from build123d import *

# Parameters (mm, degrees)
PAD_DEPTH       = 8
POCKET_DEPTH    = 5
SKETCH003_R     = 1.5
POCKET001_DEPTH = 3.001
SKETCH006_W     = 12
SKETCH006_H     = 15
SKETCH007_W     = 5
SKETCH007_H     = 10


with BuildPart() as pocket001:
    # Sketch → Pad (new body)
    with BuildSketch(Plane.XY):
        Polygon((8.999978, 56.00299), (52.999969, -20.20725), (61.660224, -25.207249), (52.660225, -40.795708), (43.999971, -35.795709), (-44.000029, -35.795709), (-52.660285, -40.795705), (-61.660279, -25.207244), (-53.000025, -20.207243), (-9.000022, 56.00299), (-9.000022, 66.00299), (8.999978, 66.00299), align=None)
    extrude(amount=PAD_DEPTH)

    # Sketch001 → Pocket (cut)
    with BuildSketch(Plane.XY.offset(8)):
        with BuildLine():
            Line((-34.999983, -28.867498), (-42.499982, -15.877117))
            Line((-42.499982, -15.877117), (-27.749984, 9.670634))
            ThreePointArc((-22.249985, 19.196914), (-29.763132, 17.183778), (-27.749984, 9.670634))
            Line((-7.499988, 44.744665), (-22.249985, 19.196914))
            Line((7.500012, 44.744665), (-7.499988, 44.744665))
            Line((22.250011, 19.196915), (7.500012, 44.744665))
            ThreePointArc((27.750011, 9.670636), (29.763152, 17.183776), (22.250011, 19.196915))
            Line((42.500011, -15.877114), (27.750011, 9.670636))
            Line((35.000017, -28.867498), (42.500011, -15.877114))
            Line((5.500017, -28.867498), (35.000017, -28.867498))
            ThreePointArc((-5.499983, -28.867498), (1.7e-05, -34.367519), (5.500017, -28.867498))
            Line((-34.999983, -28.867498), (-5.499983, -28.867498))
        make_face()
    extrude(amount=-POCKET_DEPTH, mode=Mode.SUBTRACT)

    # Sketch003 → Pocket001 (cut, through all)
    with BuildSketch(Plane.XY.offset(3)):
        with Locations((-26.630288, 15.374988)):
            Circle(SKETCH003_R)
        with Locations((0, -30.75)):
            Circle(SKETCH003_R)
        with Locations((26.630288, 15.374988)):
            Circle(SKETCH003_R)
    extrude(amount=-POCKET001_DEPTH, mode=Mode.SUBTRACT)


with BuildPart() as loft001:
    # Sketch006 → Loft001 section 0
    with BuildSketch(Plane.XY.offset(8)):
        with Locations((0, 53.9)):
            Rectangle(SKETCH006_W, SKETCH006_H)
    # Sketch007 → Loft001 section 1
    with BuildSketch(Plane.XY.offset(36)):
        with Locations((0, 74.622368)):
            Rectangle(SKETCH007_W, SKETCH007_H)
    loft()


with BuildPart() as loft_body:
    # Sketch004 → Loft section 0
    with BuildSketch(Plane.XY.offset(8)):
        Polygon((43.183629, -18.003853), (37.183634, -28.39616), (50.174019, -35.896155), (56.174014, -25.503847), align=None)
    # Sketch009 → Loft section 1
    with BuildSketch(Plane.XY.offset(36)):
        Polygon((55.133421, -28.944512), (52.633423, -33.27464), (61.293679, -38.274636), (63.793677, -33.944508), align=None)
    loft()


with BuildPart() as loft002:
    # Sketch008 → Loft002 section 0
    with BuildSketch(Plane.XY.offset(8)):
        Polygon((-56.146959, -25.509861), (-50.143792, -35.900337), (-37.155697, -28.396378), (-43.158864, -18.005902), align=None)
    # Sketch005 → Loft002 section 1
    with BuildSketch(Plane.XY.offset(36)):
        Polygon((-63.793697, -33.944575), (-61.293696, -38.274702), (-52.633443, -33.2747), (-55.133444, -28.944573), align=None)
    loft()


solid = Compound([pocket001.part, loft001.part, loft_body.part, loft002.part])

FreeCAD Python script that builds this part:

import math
import FreeCAD as App
import Part
import Sketcher
from FreeCAD import Vector
Q = App.Units.Quantity

doc = App.newDocument("Part")
body = doc.addObject("PartDesign::Body", "Body")

# Sketch on XY plane
sketch1 = body.newObject("Sketcher::SketchObject", "Sketch")
sketch1.AttachmentSupport = (doc.getObject("XY_Plane"), [""])
sketch1.MapMode = "FlatFace"
sketch1.addGeometry([
    Part.LineSegment(Vector(52.999969, -20.20725, 0), Vector(8.999978, 56.00299, 0)),  # 0
    Part.LineSegment(Vector(8.999978, 56.00299, 0), Vector(8.999978, 66.00299, 0)),  # 1
    Part.LineSegment(Vector(8.999978, 66.00299, 0), Vector(-9.000022, 66.00299, 0)),  # 2
    Part.LineSegment(Vector(-9.000022, 66.00299, 0), Vector(-9.000022, 56.00299, 0)),  # 3
    Part.LineSegment(Vector(-9.000022, 56.00299, 0), Vector(-53.000025, -20.207243, 0)),  # 4
    Part.LineSegment(Vector(-53.000025, -20.207243, 0), Vector(-61.660279, -25.207244, 0)),  # 5
    Part.LineSegment(Vector(-61.660279, -25.207244, 0), Vector(-52.660285, -40.795705, 0)),  # 6
    Part.LineSegment(Vector(-52.660285, -40.795705, 0), Vector(-44.000029, -35.795709, 0)),  # 7
    Part.LineSegment(Vector(-44.000029, -35.795709, 0), Vector(43.999971, -35.795709, 0)),  # 8
    Part.LineSegment(Vector(43.999971, -35.795709, 0), Vector(52.660225, -40.795708, 0)),  # 9
    Part.LineSegment(Vector(52.660225, -40.795708, 0), Vector(61.660224, -25.207249, 0)),  # 10
    Part.LineSegment(Vector(61.660224, -25.207249, 0), Vector(52.999969, -20.20725, 0)),  # 11
], False)
sketch1.addConstraint([
    Sketcher.Constraint("Coincident", 0, 2, 1, 1),
    Sketcher.Constraint("Coincident", 1, 2, 2, 1),
    Sketcher.Constraint("Coincident", 2, 2, 3, 1),
    Sketcher.Constraint("Coincident", 3, 2, 4, 1),
    Sketcher.Constraint("Coincident", 4, 2, 5, 1),
    Sketcher.Constraint("Coincident", 5, 2, 6, 1),
    Sketcher.Constraint("Coincident", 6, 2, 7, 1),
    Sketcher.Constraint("Coincident", 7, 2, 8, 1),
    Sketcher.Constraint("Coincident", 8, 2, 9, 1),
    Sketcher.Constraint("Coincident", 9, 2, 10, 1),
    Sketcher.Constraint("Coincident", 10, 2, 11, 1),
    Sketcher.Constraint("Coincident", 11, 2, 0, 1),
    Sketcher.Constraint("Vertical", 1),
    Sketcher.Constraint("Horizontal", 2),
    Sketcher.Constraint("Vertical", 3),
    Sketcher.Constraint("Horizontal", 8),
    Sketcher.Constraint("Perpendicular", 0, 5),
    Sketcher.Constraint("Perpendicular", 5, 6),
    Sketcher.Constraint("Perpendicular", 6, 7),
    Sketcher.Constraint("Perpendicular", 4, 9),
    Sketcher.Constraint("Perpendicular", 9, 10),
    Sketcher.Constraint("Perpendicular", 10, 11),
    Sketcher.Constraint("Horizontal", 0, 2, 3, 2),
    Sketcher.Constraint("Equal", 0, 4),
    Sketcher.Constraint("Equal", 5, 7),
    Sketcher.Constraint("Equal", 7, 9),
    Sketcher.Constraint("Equal", 6, 10),
    Sketcher.Constraint("Equal", 9, 11),
    Sketcher.Constraint("DistanceX", 2, 2, 2, 1, 18.0),
    Sketcher.Constraint("DistanceX", 8, 1, 8, 2, 88.0),
    Sketcher.Constraint("DistanceY", 1, 1, 1, 2, 10.0),
    Sketcher.Constraint("Angle", 0, Q("119.999993 deg")),
    Sketcher.Constraint("Distance", 0, 87.999999),
    Sketcher.Constraint("Distance", 5, 10.0),
    Sketcher.Constraint("DistanceY", -1, 1, 0, 2, 56.00299),
    Sketcher.Constraint("DistanceX", 5, 2, -1, 1, 61.660279),
])
pad1 = body.newObject("PartDesign::Pad", "Pad")
pad1.Profile = sketch1
pad1.Length = 8

# Sketch on XY plane
sketch2 = body.newObject("Sketcher::SketchObject", "Sketch001")
sketch2.AttachmentSupport = (doc.getObject("XY_Plane"), [""])
sketch2.MapMode = "FlatFace"
sketch2.AttachmentOffset = App.Placement(Vector(0, 0, 8), App.Rotation())
sketch2.addGeometry([
    Part.LineSegment(Vector(-42.499982, -15.877117, 0), Vector(-34.999983, -28.867498, 0)),  # 0
    Part.LineSegment(Vector(-34.999983, -28.867498, 0), Vector(-5.499983, -28.867498, 0)),  # 1
    Part.ArcOfCircle(Part.Circle(Vector(0.000017, -28.867519, 0), Vector(0, 0, 1), 5.5), math.radians(179.999781), math.radians(360.000219)),  # 2
    Part.LineSegment(Vector(5.500017, -28.867498, 0), Vector(35.000017, -28.867498, 0)),  # 3
    Part.LineSegment(Vector(35.000017, -28.867498, 0), Vector(42.500011, -15.877114, 0)),  # 4
    Part.LineSegment(Vector(42.500011, -15.877114, 0), Vector(27.750011, 9.670636, 0)),  # 5
    Part.ArcOfCircle(Part.Circle(Vector(25.000012, 14.433776, 0), Vector(0, 0, 1), 5.5), math.radians(-60.000015), math.radians(120.000017)),  # 6
    Part.LineSegment(Vector(22.250011, 19.196915, 0), Vector(7.500012, 44.744665, 0)),  # 7
    Part.LineSegment(Vector(7.500012, 44.744665, 0), Vector(-7.499988, 44.744665, 0)),  # 8
    Part.LineSegment(Vector(-7.499988, 44.744665, 0), Vector(-22.249985, 19.196914, 0)),  # 9
    Part.ArcOfCircle(Part.Circle(Vector(-24.999992, 14.433778, 0), Vector(0, 0, 1), 5.5), math.radians(59.999915), math.radians(240.000097)),  # 10
    Part.LineSegment(Vector(-27.749984, 9.670634, 0), Vector(-42.499982, -15.877117, 0)),  # 11
], False)
sketch2.addConstraint([
    Sketcher.Constraint("Coincident", 0, 2, 1, 1),
    Sketcher.Constraint("Coincident", 1, 2, 2, 1),
    Sketcher.Constraint("Coincident", 2, 2, 3, 1),
    Sketcher.Constraint("Coincident", 3, 2, 4, 1),
    Sketcher.Constraint("Coincident", 4, 2, 5, 1),
    Sketcher.Constraint("Coincident", 5, 2, 6, 1),
    Sketcher.Constraint("Coincident", 6, 2, 7, 1),
    Sketcher.Constraint("Coincident", 7, 2, 8, 1),
    Sketcher.Constraint("Coincident", 8, 2, 9, 1),
    Sketcher.Constraint("Coincident", 9, 2, 10, 1),
    Sketcher.Constraint("Coincident", 10, 2, 11, 1),
    Sketcher.Constraint("Coincident", 11, 2, 0, 1),
    Sketcher.Constraint("Horizontal", 1),
    Sketcher.Constraint("Horizontal", 3),
    Sketcher.Constraint("Horizontal", 8),
    Sketcher.Constraint("Equal", 2, 6),
    Sketcher.Constraint("Equal", 6, 10),
    Sketcher.Constraint("Parallel", 0, 5),
    Sketcher.Constraint("Parallel", 5, 7),
    Sketcher.Constraint("Parallel", 4, 9),
    Sketcher.Constraint("Parallel", 9, 11),
    Sketcher.Constraint("Horizontal", 1, 2, 2, 2),
    Sketcher.Constraint("Horizontal", 6, 2, 9, 2),
    Sketcher.Constraint("Equal", 1, 3),
    Sketcher.Constraint("Equal", 0, 4),
    Sketcher.Constraint("Equal", 5, 7),
    Sketcher.Constraint("Equal", 7, 9),
    Sketcher.Constraint("Equal", 9, 11),
    Sketcher.Constraint("Radius", 2, 5.5),
    Sketcher.Constraint("DistanceX", 8, 2, 8, 1, 15.0),
    Sketcher.Constraint("Angle", 0, Q("-60.000003 deg")),
    Sketcher.Constraint("Distance", 0, 14.999999),
    Sketcher.Constraint("DistanceX", 1, 1, 1, 2, 29.5),
    Sketcher.Constraint("Distance", 5, 29.500001),
    Sketcher.Constraint("DistanceX", 6, 3, 4, 2, 17.499999),
    Sketcher.Constraint("DistanceY", 0, 2, -1, 1, 28.867498),
    Sketcher.Constraint("DistanceY", 2, 3, -1, 1, 28.867519),
    Sketcher.Constraint("DistanceY", -1, 1, 10, 3, 14.433778),
    Sketcher.Constraint("DistanceX", -1, 1, 4, 2, 42.500011),
])
pocket1 = body.newObject("PartDesign::Pocket", "Pocket")
pocket1.Profile = sketch2
pocket1.Length = 5

# Sketch on XY plane
sketch3 = body.newObject("Sketcher::SketchObject", "Sketch002")
sketch3.AttachmentSupport = (doc.getObject("XY_Plane"), [""])
sketch3.MapMode = "FlatFace"
sketch3.AttachmentOffset = App.Placement(Vector(0, 0, 3), App.Rotation())
sketch3.addGeometry([
    Part.Circle(Vector(-26.630288, 15.374988, 0), Vector(0, 0, 1), 1.5),
    Part.Circle(Vector(0, -30.75, 0), Vector(0, 0, 1), 1.5),
    Part.Circle(Vector(26.630288, 15.374988, 0), Vector(0, 0, 1), 1.5),
], False)
sketch3.addConstraint([
    Sketcher.Constraint("Equal", 0, 1),
    Sketcher.Constraint("Equal", 1, 2),
    Sketcher.Constraint("Symmetric", 0, 3, 2, 3, -2),
    Sketcher.Constraint("PointOnObject", 1, 3, -2),
    Sketcher.Constraint("Diameter", 0, 3.0),
    Sketcher.Constraint("DistanceY", 1, 3, -1, 1, 30.75),
    Sketcher.Constraint("DistanceX", 0, 3, -1, 1, 26.630288),
    Sketcher.Constraint("DistanceY", 1, 3, 0, 3, 46.124988),
])
pocket2 = body.newObject("PartDesign::Pocket", "Pocket001")
pocket2.Profile = sketch3
pocket2.Type = "ThroughAll"
body2 = doc.addObject("PartDesign::Body", "Body001")

# Sketch on XY plane
sketch4 = body2.newObject("Sketcher::SketchObject", "Sketch003")
sketch4.AttachmentSupport = (doc.getObject("XY_Plane001"), [""])
sketch4.MapMode = "FlatFace"
sketch4.AttachmentOffset = App.Placement(Vector(0, 0, 8), App.Rotation())
sketch4.addGeometry([
    Part.LineSegment(Vector(-6, 61.4, 0), Vector(-6, 46.4, 0)),
    Part.LineSegment(Vector(-6, 46.4, 0), Vector(6, 46.4, 0)),
    Part.LineSegment(Vector(6, 46.4, 0), Vector(6, 61.4, 0)),
    Part.LineSegment(Vector(6, 61.4, 0), Vector(-6, 61.4, 0)),
], False)
sketch4.addConstraint([
    Sketcher.Constraint("Coincident", 0, 2, 1, 1),
    Sketcher.Constraint("Coincident", 1, 2, 2, 1),
    Sketcher.Constraint("Coincident", 2, 2, 3, 1),
    Sketcher.Constraint("Coincident", 3, 2, 0, 1),
    Sketcher.Constraint("Vertical", 0),
    Sketcher.Constraint("Horizontal", 1),
    Sketcher.Constraint("Vertical", 2),
    Sketcher.Constraint("Horizontal", 3),
    Sketcher.Constraint("DistanceX", 1, 1, 1, 2, 12.0),
    Sketcher.Constraint("DistanceY", 0, 2, 0, 1, 15.0),
    Sketcher.Constraint("DistanceX", 0, 2, -1, 1, 6.0),
    Sketcher.Constraint("DistanceY", -1, 1, 0, 2, 46.4),
])

# Sketch on XY plane
sketch5 = body2.newObject("Sketcher::SketchObject", "Sketch004")
sketch5.AttachmentSupport = (doc.getObject("XY_Plane001"), [""])
sketch5.MapMode = "FlatFace"
sketch5.AttachmentOffset = App.Placement(Vector(0, 0, 36), App.Rotation())
sketch5.addGeometry([
    Part.LineSegment(Vector(-2.5, 79.622368, 0), Vector(-2.5, 69.622368, 0)),
    Part.LineSegment(Vector(-2.5, 69.622368, 0), Vector(2.5, 69.622368, 0)),
    Part.LineSegment(Vector(2.5, 69.622368, 0), Vector(2.5, 79.622368, 0)),
    Part.LineSegment(Vector(2.5, 79.622368, 0), Vector(-2.5, 79.622368, 0)),
], False)
sketch5.addConstraint([
    Sketcher.Constraint("Coincident", 0, 2, 1, 1),
    Sketcher.Constraint("Coincident", 1, 2, 2, 1),
    Sketcher.Constraint("Coincident", 2, 2, 3, 1),
    Sketcher.Constraint("Coincident", 3, 2, 0, 1),
    Sketcher.Constraint("Vertical", 0),
    Sketcher.Constraint("Horizontal", 1),
    Sketcher.Constraint("Vertical", 2),
    Sketcher.Constraint("Horizontal", 3),
    Sketcher.Constraint("DistanceX", 1, 1, 1, 2, 5.0),
    Sketcher.Constraint("DistanceY", 0, 2, 0, 1, 10.0),
    Sketcher.Constraint("DistanceX", 0, 2, -1, 1, 2.5),
    Sketcher.Constraint("DistanceY", -1, 1, 0, 2, 69.622368),
])

additiveloft = body2.newObject("PartDesign::AdditiveLoft", "AdditiveLoft")
additiveloft.Profile = sketch4
additiveloft.Sections = [sketch5]
body3 = doc.addObject("PartDesign::Body", "Body002")

# Sketch on XY plane
sketch6 = body3.newObject("Sketcher::SketchObject", "Sketch005")
sketch6.AttachmentSupport = (doc.getObject("XY_Plane002"), [""])
sketch6.MapMode = "FlatFace"
sketch6.AttachmentOffset = App.Placement(Vector(0, 0, 8), App.Rotation())
sketch6.addGeometry([
    Part.LineSegment(Vector(43.183629, -18.003853, 0), Vector(37.183634, -28.39616, 0)),
    Part.LineSegment(Vector(37.183634, -28.39616, 0), Vector(50.174019, -35.896155, 0)),
    Part.LineSegment(Vector(50.174019, -35.896155, 0), Vector(56.174014, -25.503847, 0)),
    Part.LineSegment(Vector(56.174014, -25.503847, 0), Vector(43.183629, -18.003853, 0)),
], False)
sketch6.addConstraint([
    Sketcher.Constraint("Coincident", 0, 2, 1, 1),
    Sketcher.Constraint("Coincident", 1, 2, 2, 1),
    Sketcher.Constraint("Coincident", 2, 2, 3, 1),
    Sketcher.Constraint("Coincident", 3, 2, 0, 1),
    Sketcher.Constraint("Perpendicular", 0, 1),
    Sketcher.Constraint("Perpendicular", 1, 2),
    Sketcher.Constraint("Perpendicular", 2, 3),
    Sketcher.Constraint("Distance", 0, 11.999999),
    Sketcher.Constraint("Distance", 1, 15.000001),
    Sketcher.Constraint("DistanceY", 0, 2, -1, 1, 28.39616),
    Sketcher.Constraint("DistanceX", -1, 1, 1, 2, 50.174019),
    Sketcher.Constraint("DistanceX", -1, 1, 3, 2, 43.183629),
])

# Sketch on XY plane
sketch7 = body3.newObject("Sketcher::SketchObject", "Sketch006")
sketch7.AttachmentSupport = (doc.getObject("XY_Plane002"), [""])
sketch7.MapMode = "FlatFace"
sketch7.AttachmentOffset = App.Placement(Vector(0, 0, 36), App.Rotation())
sketch7.addGeometry([
    Part.LineSegment(Vector(55.133421, -28.944512, 0), Vector(52.633423, -33.27464, 0)),
    Part.LineSegment(Vector(52.633423, -33.27464, 0), Vector(61.293679, -38.274636, 0)),
    Part.LineSegment(Vector(61.293679, -38.274636, 0), Vector(63.793677, -33.944508, 0)),
    Part.LineSegment(Vector(63.793677, -33.944508, 0), Vector(55.133421, -28.944512, 0)),
], False)
sketch7.addConstraint([
    Sketcher.Constraint("Coincident", 0, 2, 1, 1),
    Sketcher.Constraint("Coincident", 1, 2, 2, 1),
    Sketcher.Constraint("Coincident", 2, 2, 3, 1),
    Sketcher.Constraint("Coincident", 3, 2, 0, 1),
    Sketcher.Constraint("Perpendicular", 0, 1),
    Sketcher.Constraint("Perpendicular", 1, 2),
    Sketcher.Constraint("Perpendicular", 2, 3),
    Sketcher.Constraint("Distance", 0, 5.0),
    Sketcher.Constraint("Distance", 1, 10.0),
    Sketcher.Constraint("DistanceX", 1, 2, 2, 2, 2.499998),
    Sketcher.Constraint("DistanceY", 0, 2, -1, 1, 33.27464),
    Sketcher.Constraint("DistanceX", -1, 1, 1, 2, 61.293679),
])

additiveloft2 = body3.newObject("PartDesign::AdditiveLoft", "AdditiveLoft001")
additiveloft2.Profile = sketch6
additiveloft2.Sections = [sketch7]
body4 = doc.addObject("PartDesign::Body", "Body003")

# Sketch on XY plane
sketch8 = body4.newObject("Sketcher::SketchObject", "Sketch007")
sketch8.AttachmentSupport = (doc.getObject("XY_Plane003"), [""])
sketch8.MapMode = "FlatFace"
sketch8.AttachmentOffset = App.Placement(Vector(0, 0, 8), App.Rotation())
sketch8.addGeometry([
    Part.LineSegment(Vector(-56.146959, -25.509861, 0), Vector(-50.143792, -35.900337, 0)),
    Part.LineSegment(Vector(-50.143792, -35.900337, 0), Vector(-37.155697, -28.396378, 0)),
    Part.LineSegment(Vector(-37.155697, -28.396378, 0), Vector(-43.158864, -18.005902, 0)),
    Part.LineSegment(Vector(-43.158864, -18.005902, 0), Vector(-56.146959, -25.509861, 0)),
], False)
sketch8.addConstraint([
    Sketcher.Constraint("Coincident", 0, 2, 1, 1),
    Sketcher.Constraint("Coincident", 1, 2, 2, 1),
    Sketcher.Constraint("Coincident", 2, 2, 3, 1),
    Sketcher.Constraint("Coincident", 3, 2, 0, 1),
    Sketcher.Constraint("Perpendicular", 0, 1),
    Sketcher.Constraint("Perpendicular", 1, 2),
    Sketcher.Constraint("Perpendicular", 2, 3),
    Sketcher.Constraint("Distance", 0, 12.0),
    Sketcher.Constraint("Distance", 1, 15.0),
    Sketcher.Constraint("DistanceY", 2, 2, -1, 1, 18.005902),
    Sketcher.Constraint("DistanceX", 0, 2, -1, 1, 50.143792),
    Sketcher.Constraint("DistanceX", 3, 2, -1, 1, 56.146959),
])

# Sketch on XY plane
sketch9 = body4.newObject("Sketcher::SketchObject", "Sketch008")
sketch9.AttachmentSupport = (doc.getObject("XY_Plane003"), [""])
sketch9.MapMode = "FlatFace"
sketch9.AttachmentOffset = App.Placement(Vector(0, 0, 36), App.Rotation())
sketch9.addGeometry([
    Part.LineSegment(Vector(-63.793697, -33.944575, 0), Vector(-61.293696, -38.274702, 0)),
    Part.LineSegment(Vector(-61.293696, -38.274702, 0), Vector(-52.633443, -33.2747, 0)),
    Part.LineSegment(Vector(-52.633443, -33.2747, 0), Vector(-55.133444, -28.944573, 0)),
    Part.LineSegment(Vector(-55.133444, -28.944573, 0), Vector(-63.793697, -33.944575, 0)),
], False)
sketch9.addConstraint([
    Sketcher.Constraint("Coincident", 0, 2, 1, 1),
    Sketcher.Constraint("Coincident", 1, 2, 2, 1),
    Sketcher.Constraint("Coincident", 2, 2, 3, 1),
    Sketcher.Constraint("Coincident", 3, 2, 0, 1),
    Sketcher.Constraint("Perpendicular", 0, 1),
    Sketcher.Constraint("Perpendicular", 1, 2),
    Sketcher.Constraint("Perpendicular", 2, 3),
    Sketcher.Constraint("Angle", 0, Q("-59.99999 deg")),
    Sketcher.Constraint("Distance", 0, 5.0),
    Sketcher.Constraint("Distance", 1, 10.0),
    Sketcher.Constraint("DistanceY", 0, 2, -1, 1, 38.274702),
    Sketcher.Constraint("DistanceX", 0, 2, -1, 1, 61.293696),
])

additiveloft3 = body4.newObject("PartDesign::AdditiveLoft", "AdditiveLoft002")
additiveloft3.Profile = sketch8
additiveloft3.Sections = [sketch9]

doc.recompute()
